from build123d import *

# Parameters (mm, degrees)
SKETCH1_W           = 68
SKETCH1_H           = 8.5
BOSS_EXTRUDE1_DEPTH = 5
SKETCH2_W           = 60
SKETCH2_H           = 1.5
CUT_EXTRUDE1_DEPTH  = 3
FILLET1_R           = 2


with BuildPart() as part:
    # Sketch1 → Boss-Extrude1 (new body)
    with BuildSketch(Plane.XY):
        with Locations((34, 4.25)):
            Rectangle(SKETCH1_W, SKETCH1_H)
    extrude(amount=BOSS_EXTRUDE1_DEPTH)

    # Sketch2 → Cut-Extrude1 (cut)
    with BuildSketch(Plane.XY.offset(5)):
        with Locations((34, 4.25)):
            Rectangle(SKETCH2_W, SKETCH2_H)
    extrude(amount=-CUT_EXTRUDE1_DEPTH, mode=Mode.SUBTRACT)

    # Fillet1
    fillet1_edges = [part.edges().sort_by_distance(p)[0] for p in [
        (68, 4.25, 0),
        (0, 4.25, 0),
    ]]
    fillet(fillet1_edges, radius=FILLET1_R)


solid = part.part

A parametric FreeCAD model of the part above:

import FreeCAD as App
import Part
import Sketcher
from FreeCAD import Vector
Q = App.Units.Quantity


def edges_at(feature, points):
    """Names of the edges that pass closest to the given points."""
    edges = feature.Shape.Edges
    near = lambda p: min(range(len(edges)), key=lambda i: edges[i].distToShape(Part.Vertex(*p))[0])
    return sorted({f"Edge{near(p) + 1}" for p in points})

doc = App.newDocument("Part")
body = doc.addObject("PartDesign::Body", "Body")

sketch1 = doc.addObject("Sketcher::SketchObject", "Sketch")
body.addObject(sketch1)
sketch1.AttachmentSupport = (doc.XY_Plane, [""])
sketch1.MapMode = "FlatFace"
sketch1.addGeometry([
    Part.LineSegment(Vector(0, 8.5, 0), Vector(0, 0, 0)),
    Part.LineSegment(Vector(0, 0, 0), Vector(68, 0, 0)),
    Part.LineSegment(Vector(68, 0, 0), Vector(68, 8.5, 0)),
    Part.LineSegment(Vector(68, 8.5, 0), Vector(0, 8.5, 0)),
], False)
sketch1.addConstraint([
    Sketcher.Constraint("Coincident", 0, 2, 1, 1),
    Sketcher.Constraint("Coincident", 1, 2, 2, 1),
    Sketcher.Constraint("Coincident", 2, 2, 3, 1),
    Sketcher.Constraint("Coincident", 3, 2, 0, 1),
    Sketcher.Constraint("Vertical", 0),
    Sketcher.Constraint("Horizontal", 1),
    Sketcher.Constraint("Vertical", 2),
    Sketcher.Constraint("Horizontal", 3),
    Sketcher.Constraint("Coincident", 0, 2, -1, 1),
    Sketcher.Constraint("DistanceX", 1, 1, 1, 2, Q("68 mm")),
    Sketcher.Constraint("DistanceY", 0, 2, 0, 1, Q("8.5 mm")),
])
pad1 = doc.addObject("PartDesign::Pad", "Pad")
body.addObject(pad1)
pad1.Profile = sketch1
pad1.Length = 5

sketch2 = doc.addObject("Sketcher::SketchObject", "Sketch001")
body.addObject(sketch2)
sketch2.AttachmentSupport = (doc.XY_Plane, [""])
sketch2.MapMode = "FlatFace"
sketch2.AttachmentOffset = App.Placement(Vector(0, 0, 5), App.Rotation())
sketch2.addGeometry([
    Part.LineSegment(Vector(4, 5, 0), Vector(4, 3.5, 0)),
    Part.LineSegment(Vector(4, 3.5, 0), Vector(64, 3.5, 0)),
    Part.LineSegment(Vector(64, 3.5, 0), Vector(64, 5, 0)),
    Part.LineSegment(Vector(64, 5, 0), Vector(4, 5, 0)),
], False)
sketch2.addConstraint([
    Sketcher.Constraint("Coincident", 0, 2, 1, 1),
    Sketcher.Constraint("Coincident", 1, 2, 2, 1),
    Sketcher.Constraint("Coincident", 2, 2, 3, 1),
    Sketcher.Constraint("Coincident", 3, 2, 0, 1),
    Sketcher.Constraint("Vertical", 0),
    Sketcher.Constraint("Horizontal", 1),
    Sketcher.Constraint("Vertical", 2),
    Sketcher.Constraint("Horizontal", 3),
    Sketcher.Constraint("DistanceX", 1, 1, 1, 2, Q("60 mm")),
    Sketcher.Constraint("DistanceY", 0, 2, 0, 1, Q("1.5 mm")),
    Sketcher.Constraint("DistanceX", -1, 1, 0, 2, Q("4 mm")),
    Sketcher.Constraint("DistanceY", -1, 1, 2, 2, Q("5 mm")),
])
pocket1 = doc.addObject("PartDesign::Pocket", "Pocket")
body.addObject(pocket1)
pocket1.Profile = sketch2
pocket1.Length = 3
doc.recompute()

fillet = doc.addObject("PartDesign::Fillet", "Fillet")
body.addObject(fillet)
fillet.Base = (pocket1, edges_at(pocket1, [(68, 4.25, 0), (0, 4.25, 0)]))
fillet.Radius = 2

doc.recompute()
